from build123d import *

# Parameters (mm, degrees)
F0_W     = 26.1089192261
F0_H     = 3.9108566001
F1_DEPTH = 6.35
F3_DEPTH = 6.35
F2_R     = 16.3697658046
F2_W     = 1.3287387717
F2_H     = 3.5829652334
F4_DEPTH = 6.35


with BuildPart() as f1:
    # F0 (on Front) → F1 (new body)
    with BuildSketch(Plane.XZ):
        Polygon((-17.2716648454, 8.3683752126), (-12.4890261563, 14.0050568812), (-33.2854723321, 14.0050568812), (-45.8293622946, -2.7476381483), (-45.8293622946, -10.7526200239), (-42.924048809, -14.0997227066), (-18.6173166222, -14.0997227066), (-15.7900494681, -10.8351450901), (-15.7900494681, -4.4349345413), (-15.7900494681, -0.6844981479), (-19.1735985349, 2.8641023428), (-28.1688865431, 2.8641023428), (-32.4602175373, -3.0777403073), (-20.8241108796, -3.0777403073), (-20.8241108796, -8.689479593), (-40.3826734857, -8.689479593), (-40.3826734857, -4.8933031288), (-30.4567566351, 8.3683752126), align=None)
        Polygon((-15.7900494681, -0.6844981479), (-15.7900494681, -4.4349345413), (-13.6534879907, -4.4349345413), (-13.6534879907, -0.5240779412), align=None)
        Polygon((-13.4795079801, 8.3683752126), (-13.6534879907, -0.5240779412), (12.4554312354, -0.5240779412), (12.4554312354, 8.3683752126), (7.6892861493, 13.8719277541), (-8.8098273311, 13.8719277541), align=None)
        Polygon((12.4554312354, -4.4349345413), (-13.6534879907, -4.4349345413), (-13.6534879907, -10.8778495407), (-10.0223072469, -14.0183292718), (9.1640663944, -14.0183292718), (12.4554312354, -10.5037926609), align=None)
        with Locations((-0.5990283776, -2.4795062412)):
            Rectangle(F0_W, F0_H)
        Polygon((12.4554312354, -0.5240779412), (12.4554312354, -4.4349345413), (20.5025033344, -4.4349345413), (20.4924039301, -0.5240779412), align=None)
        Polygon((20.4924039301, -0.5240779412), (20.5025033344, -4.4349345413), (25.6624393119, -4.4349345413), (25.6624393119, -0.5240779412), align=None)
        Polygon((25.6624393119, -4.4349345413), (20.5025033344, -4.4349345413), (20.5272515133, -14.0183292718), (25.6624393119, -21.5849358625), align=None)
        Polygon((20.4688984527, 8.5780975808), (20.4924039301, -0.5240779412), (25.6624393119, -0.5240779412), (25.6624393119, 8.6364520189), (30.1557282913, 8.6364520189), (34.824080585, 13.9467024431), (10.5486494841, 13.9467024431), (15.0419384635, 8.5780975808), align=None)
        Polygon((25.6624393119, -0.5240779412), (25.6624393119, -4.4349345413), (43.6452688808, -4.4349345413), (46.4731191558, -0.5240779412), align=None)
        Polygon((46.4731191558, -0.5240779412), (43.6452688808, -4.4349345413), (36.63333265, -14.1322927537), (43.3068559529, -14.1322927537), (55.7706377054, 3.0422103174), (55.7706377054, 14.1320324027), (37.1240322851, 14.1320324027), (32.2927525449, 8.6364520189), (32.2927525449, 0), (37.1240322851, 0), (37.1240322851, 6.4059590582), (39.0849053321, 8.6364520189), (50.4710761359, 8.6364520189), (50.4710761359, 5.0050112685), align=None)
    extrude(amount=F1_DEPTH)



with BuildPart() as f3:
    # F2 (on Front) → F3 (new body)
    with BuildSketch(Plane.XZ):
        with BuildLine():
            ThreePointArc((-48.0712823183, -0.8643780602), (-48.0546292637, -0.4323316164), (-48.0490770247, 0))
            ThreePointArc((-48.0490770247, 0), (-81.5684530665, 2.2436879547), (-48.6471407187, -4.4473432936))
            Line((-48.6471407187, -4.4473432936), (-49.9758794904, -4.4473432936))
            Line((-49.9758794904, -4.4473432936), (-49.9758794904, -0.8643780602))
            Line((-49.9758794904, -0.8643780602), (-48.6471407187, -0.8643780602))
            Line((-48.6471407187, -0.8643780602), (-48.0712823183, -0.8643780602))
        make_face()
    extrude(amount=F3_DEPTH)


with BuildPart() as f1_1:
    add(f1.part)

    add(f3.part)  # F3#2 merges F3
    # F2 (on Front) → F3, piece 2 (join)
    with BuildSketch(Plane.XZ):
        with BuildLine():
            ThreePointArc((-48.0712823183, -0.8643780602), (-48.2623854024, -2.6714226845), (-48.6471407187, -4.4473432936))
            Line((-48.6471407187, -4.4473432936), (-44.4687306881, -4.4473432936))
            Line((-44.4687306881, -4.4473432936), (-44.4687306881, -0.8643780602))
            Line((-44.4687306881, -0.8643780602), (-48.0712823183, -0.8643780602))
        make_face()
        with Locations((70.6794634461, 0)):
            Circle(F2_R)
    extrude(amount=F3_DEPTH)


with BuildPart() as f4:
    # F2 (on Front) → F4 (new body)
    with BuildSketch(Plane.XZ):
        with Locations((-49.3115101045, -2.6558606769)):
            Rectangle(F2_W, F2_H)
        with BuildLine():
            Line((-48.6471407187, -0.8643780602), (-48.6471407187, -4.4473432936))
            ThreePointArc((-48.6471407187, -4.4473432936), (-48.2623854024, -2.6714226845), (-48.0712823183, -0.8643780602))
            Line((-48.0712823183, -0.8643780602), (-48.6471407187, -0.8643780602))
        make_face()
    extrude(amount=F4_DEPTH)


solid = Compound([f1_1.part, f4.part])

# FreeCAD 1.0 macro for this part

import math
import FreeCAD as App
import Part
import Sketcher

V = App.Vector
Q = App.Units.Quantity


def add_polygon(sketch, points):
    """Adds a closed chain of lines whose ends are joined by coincident constraints."""
    first, n = sketch.GeometryCount, len(points)
    for a, b in zip(points, points[1:] + points[:1]):
        sketch.addGeometry(Part.LineSegment(App.Vector(*a, 0), App.Vector(*b, 0)), False)
    for i in range(n):
        sketch.addConstraint(Sketcher.Constraint("Coincident", first + i, 2, first + (i + 1) % n, 1))

doc = App.newDocument("Part")
params = doc.addObject("Spreadsheet::Sheet", "Params")
for row, (alias, value) in enumerate([
    ("pad1_length", "0.25 in"),
    ("pad2_length", "0.25 in"),
    ("pad3_length", "0.25 in"),
    ("pad4_length", "0.25 in"),
], start=1):
    params.set(f"A{row}", alias)
    params.set(f"B{row}", "=" + value)
    params.setAlias(f"B{row}", alias)

body = doc.addObject("PartDesign::Body", "Body")

# Sketch on XZ plane
sketch1 = body.newObject("Sketcher::SketchObject", "Sketch")
sketch1.AttachmentSupport = (doc.getObject("XZ_Plane"), [""])
sketch1.MapMode = "FlatFace"
add_polygon(sketch1, [(-17.3, 8.4), (-12.5, 14), (-33.3, 14), (-45.8, -2.7), (-45.8, -10.8), (-42.9, -14.1), (-18.6, -14.1), (-15.8, -10.8), (-15.8, -4.4), (-13.7, -4.4), (-13.7, -10.9), (-10, -14), (9.2, -14), (12.5, -10.5), (12.5, -4.4), (20.5, -4.4), (20.5, -14), (25.7, -21.6), (25.7, -4.4), (43.6, -4.4), (36.6, -14.1), (43.3, -14.1), (55.8, 3), (55.8, 14.1), (37.1, 14.1), (32.3, 8.6), (32.3, 0), (37.1, 0), (37.1, 6.4), (39.1, 8.6), (50.5, 8.6), (50.5, 5), (46.5, -0.5), (25.7, -0.5), (25.7, 8.6), (30.2, 8.6), (34.8, 13.9), (10.5, 13.9), (15, 8.6), (20.5, 8.6), (20.5, -0.5), (12.5, -0.5), (12.5, 8.4), (7.7, 13.9), (-8.8, 13.9), (-13.5, 8.4), (-13.7, -0.5), (-15.8, -0.7), (-19.2, 2.9), (-28.2, 2.9), (-32.5, -3.1), (-20.8, -3.1), (-20.8, -8.7), (-40.4, -8.7), (-40.4, -4.9), (-30.5, 8.4)])  # lines 0-55
sketch1.addConstraint([
    Sketcher.Constraint("Horizontal", 1),
    Sketcher.Constraint("Vertical", 3),
    Sketcher.Constraint("Horizontal", 5),
    Sketcher.Constraint("Vertical", 7),
    Sketcher.Constraint("Horizontal", 8),
    Sketcher.Constraint("Vertical", 9),
    Sketcher.Constraint("Horizontal", 11),
    Sketcher.Constraint("Vertical", 13),
    Sketcher.Constraint("Horizontal", 14),
    Sketcher.Constraint("Vertical", 17),
    Sketcher.Constraint("Horizontal", 18),
    Sketcher.Constraint("Horizontal", 20),
    Sketcher.Constraint("Vertical", 22),
    Sketcher.Constraint("Horizontal", 23),
    Sketcher.Constraint("Vertical", 25),
    Sketcher.Constraint("Horizontal", 26),
    Sketcher.Constraint("Vertical", 27),
    Sketcher.Constraint("Horizontal", 29),
    Sketcher.Constraint("Vertical", 30),
    Sketcher.Constraint("Horizontal", 32),
    Sketcher.Constraint("Vertical", 33),
    Sketcher.Constraint("Horizontal", 34),
    Sketcher.Constraint("Horizontal", 36),
    Sketcher.Constraint("Horizontal", 38),
    Sketcher.Constraint("Horizontal", 40),
    Sketcher.Constraint("Vertical", 41),
    Sketcher.Constraint("Horizontal", 43),
    Sketcher.Constraint("Horizontal", 48),
    Sketcher.Constraint("Horizontal", 50),
    Sketcher.Constraint("Vertical", 51),
    Sketcher.Constraint("Horizontal", 52),
    Sketcher.Constraint("Vertical", 53),
    Sketcher.Constraint("Horizontal", 55),
    Sketcher.Constraint("PointOnObject", 25, 2, -1),
    Sketcher.Constraint("Parallel", 24, 28),
    Sketcher.Constraint("Parallel", 19, 31),
    Sketcher.Constraint("Parallel", 28, 35),
    Sketcher.Constraint("Parallel", 15, 39),
    Sketcher.Constraint("Parallel", 0, 44),
    Sketcher.Constraint("Horizontal", 8, 2, 13, 2),
    Sketcher.Constraint("Horizontal", 11, 2, 15, 2),
    Sketcher.Constraint("Horizontal", 14, 2, 17, 2),
    Sketcher.Constraint("Horizontal", 24, 2, 28, 2),
    Sketcher.Constraint("Horizontal", 29, 2, 33, 2),
    Sketcher.Constraint("Horizontal", 32, 2, 39, 2),
    Sketcher.Constraint("Horizontal", 41, 2, 44, 2),
    Sketcher.Constraint("Horizontal", 40, 2, 45, 2),
    Sketcher.Constraint("Horizontal", 44, 2, 54, 2),
    Sketcher.Constraint("Vertical", 23, 2, 26, 2),
    Sketcher.Constraint("Vertical", 17, 2, 32, 2),
    Sketcher.Constraint("Vertical", 13, 2, 40, 2),
    Sketcher.Constraint("Vertical", 9, 2, 45, 2),
    Sketcher.Constraint("Vertical", 7, 2, 46, 2),
    Sketcher.Constraint("DistanceY", 17, 1, 17, 2, 17.150001),
    Sketcher.Constraint("DistanceX", 20, 2, 21, 2, Q("0.4907001 in")),
    Sketcher.Constraint("DistanceX", 31, 2, 30, 2, Q("0.1573999 in")),
    Sketcher.Constraint("Distance", 16, 9.144599),
    Sketcher.Constraint("Distance", 54, 16.564901),
    Sketcher.Constraint("DistanceX", 8, 1, 8, 2, 2.136561),
    Sketcher.Constraint("DistanceX", 18, 1, 18, 2, 17.98283),
    Sketcher.Constraint("DistanceX", 26, 1, 26, 2, 4.83128),
    Sketcher.Constraint("DistanceX", 29, 1, 29, 2, 11.386171),
    Sketcher.Constraint("DistanceX", 32, 2, 32, 1, 20.81068),
    Sketcher.Constraint("DistanceX", 34, 1, 34, 2, 4.493289),
    Sketcher.Constraint("DistanceX", 36, 2, 36, 1, 24.275431),
    Sketcher.Constraint("DistanceX", 38, 1, 38, 2, 5.42696),
    Sketcher.Constraint("DistanceX", 48, 2, 48, 1, 8.995288),
    Sketcher.Constraint("DistanceX", 55, 1, 55, 2, 13.185092),
    Sketcher.Constraint("DistanceY", 3, 2, 3, 1, 8.004982),
    Sketcher.Constraint("DistanceY", 7, 1, 7, 2, 6.400211),
    Sketcher.Constraint("DistanceY", 13, 1, 13, 2, 6.068858),
    Sketcher.Constraint("DistanceY", 27, 1, 27, 2, 6.405959),
    Sketcher.Constraint("DistanceY", 30, 2, 30, 1, 3.631441),
    Sketcher.Constraint("DistanceY", 33, 1, 33, 2, 9.16053),
    Sketcher.Constraint("DistanceY", 51, 2, 51, 1, 5.611739),
    Sketcher.Constraint("DistanceX", -1, 1, 38, 2, 20.468898),
    Sketcher.Constraint("DistanceY", 46, 2, -1, 1, 0.684498),
    Sketcher.Constraint("DistanceX", 47, 2, -1, 1, 19.173599),
    Sketcher.Constraint("DistanceY", 6, 2, 0, 2, 24.840202),
    Sketcher.Constraint("DistanceX", 4, 2, 6, 2, 27.133999),
    Sketcher.Constraint("DistanceX", 17, 2, 21, 2, 30.108198),
    Sketcher.Constraint("DistanceY", 21, 2, 30, 2, 1.962801),
    Sketcher.Constraint("DistanceX", 37, 2, 33, 2, 10.620501),
    Sketcher.Constraint("DistanceX", 39, 2, 14, 2, 0.010099),
    Sketcher.Constraint("DistanceX", 0, 2, 43, 2, 3.679199),
    Sketcher.Constraint("DistanceY", 46, 2, 47, 2, 3.5486),
    Sketcher.Constraint("DistanceX", 48, 2, 45, 2, 14.515399),
    Sketcher.Constraint("Distance", 0, 7.392281),
    Sketcher.Constraint("Distance", 4, 4.432149),
    Sketcher.Constraint("Distance", 6, 4.31867),
    Sketcher.Constraint("Distance", 19, 11.966871),
    Sketcher.Constraint("Distance", 28, 2.969869),
    Sketcher.Constraint("Distance", 35, 7.070521),
    Sketcher.Constraint("Distance", 42, 7.280469),
    Sketcher.Constraint("DistanceX", 1, 2, 1, 1, 20.796446),
    Sketcher.Constraint("DistanceX", 5, 1, 5, 2, 24.306732),
    Sketcher.Constraint("DistanceX", 11, 1, 11, 2, 19.186374),
    Sketcher.Constraint("DistanceX", 14, 1, 14, 2, 8.047072),
    Sketcher.Constraint("DistanceX", 23, 2, 23, 1, 18.646605),
    Sketcher.Constraint("DistanceX", 43, 2, 43, 1, 16.499113),
    Sketcher.Constraint("DistanceX", 50, 1, 50, 2, 11.636107),
    Sketcher.Constraint("DistanceX", 52, 2, 52, 1, 19.558563),
    Sketcher.Constraint("DistanceY", 9, 2, 9, 1, 6.442915),
    Sketcher.Constraint("DistanceY", 41, 1, 41, 2, 8.892453),
    Sketcher.Constraint("DistanceY", 53, 1, 53, 2, 3.796176),
    Sketcher.Constraint("DistanceY", 2, 2, -1, 1, 2.747638),
    Sketcher.Constraint("DistanceY", 9, 2, -1, 1, 10.87785),
    Sketcher.Constraint("DistanceY", 10, 2, -1, 1, 14.018329),
    Sketcher.Constraint("DistanceY", 49, 2, -1, 1, 3.07774),
    Sketcher.Constraint("DistanceX", 50, 2, -1, 1, 20.824111),
    Sketcher.Constraint("DistanceX", 9, 2, 10, 2, 3.631181),
    Sketcher.Constraint("DistanceY", 37, 2, 42, 2, 5.29383),
])
pad1 = body.newObject("PartDesign::Pad", "Pad")
pad1.Profile = sketch1
pad1.setExpression("Length", "Params.pad1_length")
body2 = doc.addObject("PartDesign::Body", "Body001")

# Sketch on XZ plane
sketch2 = body2.newObject("Sketcher::SketchObject", "Sketch001")
sketch2.AttachmentSupport = (doc.getObject("XZ_Plane001"), [""])
sketch2.MapMode = "FlatFace"
sketch2.addGeometry([
    Part.ArcOfCircle(Part.Circle(V(-64.9, 0, 0), V(0, 0, 1), 16.8), math.radians(-2.94), math.radians(0)),  # 0
    Part.ArcOfCircle(Part.Circle(V(-64.9, 0, 0), V(0, 0, 1), 16.8), math.radians(0), math.radians(345)),  # 1
    Part.LineSegment(V(-48.6, -4.4, 0), V(-50, -4.4, 0)),  # 2
    Part.LineSegment(V(-50, -4.4, 0), V(-50, -0.9, 0)),  # 3
    Part.LineSegment(V(-50, -0.9, 0), V(-48.1, -0.9, 0)),  # 4
], False)
sketch2.addConstraint([
    Sketcher.Constraint("Tangent", 0, 2, 1, 1),
    Sketcher.Constraint("Coincident", 1, 2, 2, 1),
    Sketcher.Constraint("Coincident", 2, 2, 3, 1),
    Sketcher.Constraint("Coincident", 3, 2, 4, 1),
    Sketcher.Constraint("Coincident", 4, 2, 0, 1),
    Sketcher.Constraint("Horizontal", 2),
    Sketcher.Constraint("Vertical", 3),
    Sketcher.Constraint("Horizontal", 4),
    Sketcher.Constraint("Equal", 0, 1),
    Sketcher.Constraint("PointOnObject", 0, 3, -1),
    Sketcher.Constraint("PointOnObject", 0, 2, -1),
    Sketcher.Constraint("Radius", 0, 16.834781),
    Sketcher.Constraint("DistanceX", 2, 2, 2, 1, 1.328739),
    Sketcher.Constraint("DistanceX", 4, 1, 4, 2, 1.904597),
    Sketcher.Constraint("DistanceY", 3, 1, 3, 2, 3.582965),
    Sketcher.Constraint("DistanceX", 1, 2, -1, 1, 48.647141),
])
pad2 = body2.newObject("PartDesign::Pad", "Pad001")
pad2.Profile = sketch2
pad2.setExpression("Length", "Params.pad2_length")
body.AllowCompound = True
doc.recompute()

boolean = body.newObject("PartDesign::Boolean", "Boolean")
boolean.Type = "Fuse"
boolean.addObjects([body2])

# Sketch on XZ plane
sketch3 = body.newObject("Sketcher::SketchObject", "Sketch002")
sketch3.AttachmentSupport = (doc.getObject("XZ_Plane"), [""])
sketch3.MapMode = "FlatFace"
sketch3.addGeometry([
    Part.ArcOfCircle(Part.Circle(V(-64.9, 0, 0), V(0, 0, 1), 16.8), math.radians(-15.32), math.radians(-2.94)),  # 0
    Part.LineSegment(V(-48.6, -4.4, 0), V(-44.5, -4.4, 0)),  # 1
    Part.LineSegment(V(-44.5, -4.4, 0), V(-44.5, -0.9, 0)),  # 2
    Part.LineSegment(V(-44.5, -0.9, 0), V(-48.1, -0.9, 0)),  # 3
    Part.Circle(V(70.7, 0, 0), V(0, 0, 1), 16.4),  # 4
], False)
sketch3.addConstraint([
    Sketcher.Constraint("Coincident", 0, 1, 1, 1),
    Sketcher.Constraint("Coincident", 1, 2, 2, 1),
    Sketcher.Constraint("Coincident", 2, 2, 3, 1),
    Sketcher.Constraint("Coincident", 3, 2, 0, 2),
    Sketcher.Constraint("Horizontal", 1),
    Sketcher.Constraint("Vertical", 2),
    Sketcher.Constraint("Horizontal", 3),
    Sketcher.Constraint("PointOnObject", 0, 3, -1),
    Sketcher.Constraint("PointOnObject", 4, 3, -1),
    Sketcher.Constraint("Diameter", 4, 32.739532),
    Sketcher.Constraint("Radius", 0, 16.834781),
    Sketcher.Constraint("DistanceX", 1, 1, 1, 2, 4.17841),
    Sketcher.Constraint("DistanceX", 3, 2, 3, 1, 3.602552),
    Sketcher.Constraint("DistanceY", 2, 1, 2, 2, 3.582965),
    Sketcher.Constraint("DistanceX", 0, 1, -1, 1, 48.647141),
    Sketcher.Constraint("DistanceX", 0, 3, 4, 3, 135.563321),
])
pad3 = body.newObject("PartDesign::Pad", "Pad002")
pad3.Profile = sketch3
pad3.setExpression("Length", "Params.pad3_length")
body3 = doc.addObject("PartDesign::Body", "Body002")

# Sketch on XZ plane
sketch4 = body3.newObject("Sketcher::SketchObject", "Sketch003")
sketch4.AttachmentSupport = (doc.getObject("XZ_Plane002"), [""])
sketch4.MapMode = "FlatFace"
sketch4.addGeometry([
    Part.LineSegment(V(-50, -0.9, 0), V(-50, -4.4, 0)),
    Part.LineSegment(V(-50, -4.4, 0), V(-48.6, -4.4, 0)),
    Part.ArcOfCircle(Part.Circle(V(-64.9, 0, 0), V(0, 0, 1), 16.8), math.radians(-15.32), math.radians(-2.94)),
    Part.LineSegment(V(-48.1, -0.9, 0), V(-50, -0.9, 0)),
], False)
sketch4.addConstraint([
    Sketcher.Constraint("Coincident", 0, 2, 1, 1),
    Sketcher.Constraint("Coincident", 1, 2, 2, 1),
    Sketcher.Constraint("Coincident", 2, 2, 3, 1),
    Sketcher.Constraint("Coincident", 3, 2, 0, 1),
    Sketcher.Constraint("Vertical", 0),
    Sketcher.Constraint("Horizontal", 1),
    Sketcher.Constraint("Horizontal", 3),
    Sketcher.Constraint("PointOnObject", 2, 3, -1),
    Sketcher.Constraint("Radius", 2, 16.834781),
    Sketcher.Constraint("DistanceX", 1, 1, 1, 2, 1.328739),
    Sketcher.Constraint("DistanceX", 3, 2, 3, 1, 1.904597),
    Sketcher.Constraint("DistanceY", 0, 2, 0, 1, 3.582965),
    Sketcher.Constraint("DistanceX", 0, 2, -1, 1, 49.975879),
])
pad4 = body3.newObject("PartDesign::Pad", "Pad003")
pad4.Profile = sketch4
pad4.setExpression("Length", "Params.pad4_length")

doc.recompute()
